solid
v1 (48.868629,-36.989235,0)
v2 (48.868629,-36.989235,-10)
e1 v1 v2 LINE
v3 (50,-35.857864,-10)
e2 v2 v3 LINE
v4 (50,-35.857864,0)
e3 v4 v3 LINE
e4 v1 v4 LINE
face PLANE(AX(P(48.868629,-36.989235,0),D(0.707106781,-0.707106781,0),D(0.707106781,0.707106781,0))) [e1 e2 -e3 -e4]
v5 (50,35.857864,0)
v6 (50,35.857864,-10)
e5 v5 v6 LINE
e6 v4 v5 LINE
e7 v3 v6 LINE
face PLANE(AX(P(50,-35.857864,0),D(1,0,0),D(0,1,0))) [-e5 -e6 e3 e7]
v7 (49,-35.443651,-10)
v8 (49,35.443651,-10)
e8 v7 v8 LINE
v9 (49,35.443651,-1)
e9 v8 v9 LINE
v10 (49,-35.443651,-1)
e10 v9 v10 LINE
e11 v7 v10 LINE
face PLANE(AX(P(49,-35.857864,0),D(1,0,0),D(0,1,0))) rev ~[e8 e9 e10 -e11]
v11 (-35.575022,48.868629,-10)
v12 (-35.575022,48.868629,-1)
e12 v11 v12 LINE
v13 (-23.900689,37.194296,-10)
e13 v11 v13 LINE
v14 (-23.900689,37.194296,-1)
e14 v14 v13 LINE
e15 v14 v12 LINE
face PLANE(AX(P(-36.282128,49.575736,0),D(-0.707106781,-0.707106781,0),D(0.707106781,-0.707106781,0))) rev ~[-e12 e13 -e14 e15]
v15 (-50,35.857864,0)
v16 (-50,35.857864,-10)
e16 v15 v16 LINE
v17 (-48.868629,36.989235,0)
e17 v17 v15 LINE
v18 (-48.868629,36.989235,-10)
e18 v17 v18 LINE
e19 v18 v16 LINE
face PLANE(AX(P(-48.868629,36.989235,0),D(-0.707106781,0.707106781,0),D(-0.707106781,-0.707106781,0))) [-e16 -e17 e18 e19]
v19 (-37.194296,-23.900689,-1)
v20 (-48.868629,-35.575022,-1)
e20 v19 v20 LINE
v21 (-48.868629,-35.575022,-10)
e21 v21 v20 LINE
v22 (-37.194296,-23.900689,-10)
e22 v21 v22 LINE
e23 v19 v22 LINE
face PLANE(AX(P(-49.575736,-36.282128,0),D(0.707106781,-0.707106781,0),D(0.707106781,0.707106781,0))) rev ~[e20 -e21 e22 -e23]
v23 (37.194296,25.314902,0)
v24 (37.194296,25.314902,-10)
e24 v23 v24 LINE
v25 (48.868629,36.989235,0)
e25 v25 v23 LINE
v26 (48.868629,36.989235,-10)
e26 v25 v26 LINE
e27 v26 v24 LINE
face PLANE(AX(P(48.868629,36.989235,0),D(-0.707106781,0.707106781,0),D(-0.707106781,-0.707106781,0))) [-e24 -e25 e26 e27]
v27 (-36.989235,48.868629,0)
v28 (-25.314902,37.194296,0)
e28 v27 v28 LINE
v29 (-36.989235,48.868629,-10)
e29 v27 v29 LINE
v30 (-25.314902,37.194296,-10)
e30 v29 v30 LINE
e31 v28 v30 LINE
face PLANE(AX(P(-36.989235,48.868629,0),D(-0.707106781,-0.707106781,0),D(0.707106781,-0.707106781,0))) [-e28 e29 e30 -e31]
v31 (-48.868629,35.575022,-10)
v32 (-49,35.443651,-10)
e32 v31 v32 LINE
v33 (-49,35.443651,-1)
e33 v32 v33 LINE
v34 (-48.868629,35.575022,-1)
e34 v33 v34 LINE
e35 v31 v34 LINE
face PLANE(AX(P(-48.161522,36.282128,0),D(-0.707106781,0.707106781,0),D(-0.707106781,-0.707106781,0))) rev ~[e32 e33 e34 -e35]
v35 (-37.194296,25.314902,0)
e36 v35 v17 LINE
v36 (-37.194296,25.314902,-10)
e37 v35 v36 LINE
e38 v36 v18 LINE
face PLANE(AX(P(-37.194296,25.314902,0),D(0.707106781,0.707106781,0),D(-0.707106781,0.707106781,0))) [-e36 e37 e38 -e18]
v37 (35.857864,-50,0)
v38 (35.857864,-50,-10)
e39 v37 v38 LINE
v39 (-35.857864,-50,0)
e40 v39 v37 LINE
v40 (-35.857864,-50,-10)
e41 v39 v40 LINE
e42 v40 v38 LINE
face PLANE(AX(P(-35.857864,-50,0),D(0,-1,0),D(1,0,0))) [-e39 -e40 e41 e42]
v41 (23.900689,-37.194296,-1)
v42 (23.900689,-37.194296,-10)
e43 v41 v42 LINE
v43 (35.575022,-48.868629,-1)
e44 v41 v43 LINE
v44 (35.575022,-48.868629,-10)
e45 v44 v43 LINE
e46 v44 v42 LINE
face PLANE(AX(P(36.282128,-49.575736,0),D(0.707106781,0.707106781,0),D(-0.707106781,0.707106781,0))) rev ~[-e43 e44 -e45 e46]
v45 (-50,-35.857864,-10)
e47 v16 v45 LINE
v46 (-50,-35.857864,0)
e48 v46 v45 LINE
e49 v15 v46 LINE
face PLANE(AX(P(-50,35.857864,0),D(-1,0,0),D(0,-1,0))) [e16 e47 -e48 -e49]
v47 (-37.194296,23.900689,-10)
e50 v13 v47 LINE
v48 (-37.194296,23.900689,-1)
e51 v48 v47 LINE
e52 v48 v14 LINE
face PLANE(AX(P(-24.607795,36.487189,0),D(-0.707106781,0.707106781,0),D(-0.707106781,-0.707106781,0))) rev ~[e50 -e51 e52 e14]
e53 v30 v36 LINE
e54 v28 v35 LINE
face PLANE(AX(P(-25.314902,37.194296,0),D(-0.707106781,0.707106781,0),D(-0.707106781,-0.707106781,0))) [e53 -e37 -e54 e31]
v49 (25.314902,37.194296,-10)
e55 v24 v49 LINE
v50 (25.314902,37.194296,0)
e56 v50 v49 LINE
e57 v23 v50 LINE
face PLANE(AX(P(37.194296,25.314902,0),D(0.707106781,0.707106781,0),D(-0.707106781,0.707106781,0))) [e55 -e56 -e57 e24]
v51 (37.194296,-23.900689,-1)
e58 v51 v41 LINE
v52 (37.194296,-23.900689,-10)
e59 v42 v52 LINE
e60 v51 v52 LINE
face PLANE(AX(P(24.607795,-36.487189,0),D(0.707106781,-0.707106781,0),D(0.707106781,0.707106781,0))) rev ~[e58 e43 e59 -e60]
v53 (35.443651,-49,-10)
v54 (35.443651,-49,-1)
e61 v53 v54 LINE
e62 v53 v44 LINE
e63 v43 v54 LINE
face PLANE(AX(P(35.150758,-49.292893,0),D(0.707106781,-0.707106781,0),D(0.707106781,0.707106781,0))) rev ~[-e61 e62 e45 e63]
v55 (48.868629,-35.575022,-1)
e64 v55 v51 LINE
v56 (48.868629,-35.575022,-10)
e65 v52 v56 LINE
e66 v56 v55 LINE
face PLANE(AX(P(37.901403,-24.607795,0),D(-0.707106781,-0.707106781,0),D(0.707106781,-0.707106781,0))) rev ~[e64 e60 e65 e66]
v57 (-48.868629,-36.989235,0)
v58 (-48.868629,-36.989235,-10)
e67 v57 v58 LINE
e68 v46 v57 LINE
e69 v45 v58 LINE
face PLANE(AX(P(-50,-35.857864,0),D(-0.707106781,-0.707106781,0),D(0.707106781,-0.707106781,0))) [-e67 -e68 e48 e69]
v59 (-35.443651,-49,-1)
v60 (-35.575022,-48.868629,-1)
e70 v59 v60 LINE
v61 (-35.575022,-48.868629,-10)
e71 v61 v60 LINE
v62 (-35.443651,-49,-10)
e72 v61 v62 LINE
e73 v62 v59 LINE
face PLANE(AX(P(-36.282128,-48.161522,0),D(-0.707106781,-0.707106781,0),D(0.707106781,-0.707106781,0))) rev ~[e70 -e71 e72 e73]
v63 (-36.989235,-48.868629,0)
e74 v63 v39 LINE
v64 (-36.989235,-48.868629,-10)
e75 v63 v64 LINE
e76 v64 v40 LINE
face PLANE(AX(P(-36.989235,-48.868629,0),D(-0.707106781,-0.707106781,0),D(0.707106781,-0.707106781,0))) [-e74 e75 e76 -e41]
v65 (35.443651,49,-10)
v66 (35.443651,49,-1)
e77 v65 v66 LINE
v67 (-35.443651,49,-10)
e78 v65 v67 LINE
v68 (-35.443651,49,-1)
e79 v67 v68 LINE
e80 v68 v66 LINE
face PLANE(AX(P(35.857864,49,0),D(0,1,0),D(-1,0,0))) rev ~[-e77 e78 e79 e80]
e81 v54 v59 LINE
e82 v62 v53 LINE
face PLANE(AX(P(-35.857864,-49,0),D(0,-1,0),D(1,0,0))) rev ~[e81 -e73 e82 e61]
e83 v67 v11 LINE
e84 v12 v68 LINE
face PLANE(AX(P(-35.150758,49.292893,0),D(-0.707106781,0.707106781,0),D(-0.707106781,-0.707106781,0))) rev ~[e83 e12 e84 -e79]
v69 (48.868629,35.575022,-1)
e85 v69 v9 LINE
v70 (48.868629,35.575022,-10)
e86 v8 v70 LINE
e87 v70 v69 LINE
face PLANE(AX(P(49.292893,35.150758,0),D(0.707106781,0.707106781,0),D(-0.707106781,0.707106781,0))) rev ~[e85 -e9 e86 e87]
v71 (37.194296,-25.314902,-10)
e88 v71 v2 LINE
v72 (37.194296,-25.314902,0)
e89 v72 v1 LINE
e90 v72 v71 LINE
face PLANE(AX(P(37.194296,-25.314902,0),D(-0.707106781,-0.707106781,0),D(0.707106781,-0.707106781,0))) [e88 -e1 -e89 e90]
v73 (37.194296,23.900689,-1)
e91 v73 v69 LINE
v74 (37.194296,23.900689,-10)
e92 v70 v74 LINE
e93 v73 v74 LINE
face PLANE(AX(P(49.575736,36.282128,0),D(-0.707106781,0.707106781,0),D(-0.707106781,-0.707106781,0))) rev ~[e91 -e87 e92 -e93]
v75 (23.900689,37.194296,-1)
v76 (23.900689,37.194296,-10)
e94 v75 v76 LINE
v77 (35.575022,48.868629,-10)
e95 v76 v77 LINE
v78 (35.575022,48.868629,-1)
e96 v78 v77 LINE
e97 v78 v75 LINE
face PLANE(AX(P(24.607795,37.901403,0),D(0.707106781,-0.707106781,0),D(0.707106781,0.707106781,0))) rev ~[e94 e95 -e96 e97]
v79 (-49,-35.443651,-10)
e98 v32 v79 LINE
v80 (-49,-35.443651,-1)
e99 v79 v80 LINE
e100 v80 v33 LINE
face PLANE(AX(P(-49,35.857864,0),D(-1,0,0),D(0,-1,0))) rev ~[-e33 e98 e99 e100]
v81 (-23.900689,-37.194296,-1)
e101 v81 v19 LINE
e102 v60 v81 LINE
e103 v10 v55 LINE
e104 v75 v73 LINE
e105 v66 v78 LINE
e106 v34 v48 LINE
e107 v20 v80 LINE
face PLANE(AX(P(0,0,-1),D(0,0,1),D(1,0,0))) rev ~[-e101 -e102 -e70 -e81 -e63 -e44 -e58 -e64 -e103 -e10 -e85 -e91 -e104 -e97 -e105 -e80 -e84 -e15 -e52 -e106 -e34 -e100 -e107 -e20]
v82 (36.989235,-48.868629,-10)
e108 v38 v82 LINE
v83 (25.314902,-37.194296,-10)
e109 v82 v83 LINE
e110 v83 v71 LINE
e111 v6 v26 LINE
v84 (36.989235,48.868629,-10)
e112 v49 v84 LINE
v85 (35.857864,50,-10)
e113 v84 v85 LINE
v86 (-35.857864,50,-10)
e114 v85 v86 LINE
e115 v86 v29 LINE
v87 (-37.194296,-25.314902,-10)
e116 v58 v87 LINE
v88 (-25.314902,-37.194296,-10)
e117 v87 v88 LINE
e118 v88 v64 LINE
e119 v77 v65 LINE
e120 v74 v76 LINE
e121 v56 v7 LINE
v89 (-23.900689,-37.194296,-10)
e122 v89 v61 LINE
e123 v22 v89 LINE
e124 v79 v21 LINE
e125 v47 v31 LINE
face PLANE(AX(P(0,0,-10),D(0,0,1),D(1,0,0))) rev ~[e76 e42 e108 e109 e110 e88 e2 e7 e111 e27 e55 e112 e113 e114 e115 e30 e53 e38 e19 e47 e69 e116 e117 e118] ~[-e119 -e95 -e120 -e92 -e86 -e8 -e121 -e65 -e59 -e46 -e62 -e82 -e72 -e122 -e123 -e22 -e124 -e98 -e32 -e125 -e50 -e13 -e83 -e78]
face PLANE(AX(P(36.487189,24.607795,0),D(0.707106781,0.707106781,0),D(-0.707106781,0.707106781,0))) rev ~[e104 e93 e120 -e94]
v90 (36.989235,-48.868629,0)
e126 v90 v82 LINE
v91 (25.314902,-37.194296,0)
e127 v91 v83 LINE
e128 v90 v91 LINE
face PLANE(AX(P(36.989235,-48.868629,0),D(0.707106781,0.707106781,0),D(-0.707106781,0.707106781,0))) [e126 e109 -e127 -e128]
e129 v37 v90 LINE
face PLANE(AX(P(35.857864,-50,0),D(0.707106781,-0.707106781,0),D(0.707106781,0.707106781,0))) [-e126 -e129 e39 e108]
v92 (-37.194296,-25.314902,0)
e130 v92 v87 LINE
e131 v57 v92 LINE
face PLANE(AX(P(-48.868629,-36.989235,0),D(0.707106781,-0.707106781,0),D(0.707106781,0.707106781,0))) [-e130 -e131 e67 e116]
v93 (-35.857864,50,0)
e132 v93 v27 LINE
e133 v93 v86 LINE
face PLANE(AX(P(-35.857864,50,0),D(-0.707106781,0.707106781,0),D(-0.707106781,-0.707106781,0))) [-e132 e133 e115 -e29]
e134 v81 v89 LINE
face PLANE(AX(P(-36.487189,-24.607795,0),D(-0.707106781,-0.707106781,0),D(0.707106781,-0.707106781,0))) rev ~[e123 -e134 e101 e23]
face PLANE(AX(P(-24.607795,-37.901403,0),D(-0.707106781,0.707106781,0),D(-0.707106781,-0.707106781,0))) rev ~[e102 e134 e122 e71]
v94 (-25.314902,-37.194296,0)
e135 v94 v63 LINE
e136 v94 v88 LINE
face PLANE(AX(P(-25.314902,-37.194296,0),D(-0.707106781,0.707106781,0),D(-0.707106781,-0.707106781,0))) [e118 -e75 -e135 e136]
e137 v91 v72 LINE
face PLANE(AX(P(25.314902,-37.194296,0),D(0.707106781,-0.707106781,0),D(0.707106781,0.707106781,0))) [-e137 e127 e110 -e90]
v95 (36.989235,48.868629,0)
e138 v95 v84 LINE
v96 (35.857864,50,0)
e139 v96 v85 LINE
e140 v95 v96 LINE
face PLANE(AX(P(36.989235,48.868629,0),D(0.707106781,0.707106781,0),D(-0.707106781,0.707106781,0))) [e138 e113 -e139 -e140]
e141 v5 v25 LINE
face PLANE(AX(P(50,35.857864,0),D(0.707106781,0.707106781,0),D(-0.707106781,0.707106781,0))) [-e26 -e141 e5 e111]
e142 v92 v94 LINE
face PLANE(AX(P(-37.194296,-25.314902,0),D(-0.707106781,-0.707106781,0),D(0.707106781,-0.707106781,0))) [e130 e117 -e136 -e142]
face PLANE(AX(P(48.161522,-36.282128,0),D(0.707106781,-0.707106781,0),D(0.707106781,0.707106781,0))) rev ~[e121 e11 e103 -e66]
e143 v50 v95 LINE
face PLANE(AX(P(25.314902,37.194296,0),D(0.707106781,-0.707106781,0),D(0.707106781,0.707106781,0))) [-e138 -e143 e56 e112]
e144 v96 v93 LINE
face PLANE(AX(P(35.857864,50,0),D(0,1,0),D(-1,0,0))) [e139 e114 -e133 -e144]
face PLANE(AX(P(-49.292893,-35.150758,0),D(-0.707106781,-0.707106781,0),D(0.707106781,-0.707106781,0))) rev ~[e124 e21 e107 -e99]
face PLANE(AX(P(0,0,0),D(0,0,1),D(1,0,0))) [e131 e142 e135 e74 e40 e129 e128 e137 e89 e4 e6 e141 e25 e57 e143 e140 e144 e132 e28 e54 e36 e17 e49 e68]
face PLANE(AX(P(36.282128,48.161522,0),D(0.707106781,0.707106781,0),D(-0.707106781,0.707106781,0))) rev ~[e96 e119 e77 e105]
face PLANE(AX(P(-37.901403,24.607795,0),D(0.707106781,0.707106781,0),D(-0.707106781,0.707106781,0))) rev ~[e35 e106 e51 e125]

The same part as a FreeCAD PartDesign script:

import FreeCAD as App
import Part
import Sketcher


def faces_at(feature, points):
    """Names of the faces that lie closest to the given points."""
    faces = feature.Shape.Faces
    near = lambda p: min(range(len(faces)), key=lambda i: faces[i].distToShape(Part.Vertex(*p))[0])
    return sorted({f"Face{near(p) + 1}" for p in points})


def add_polygon(sketch, points):
    """Adds a closed chain of lines whose ends are joined by coincident constraints."""
    first, n = sketch.GeometryCount, len(points)
    for a, b in zip(points, points[1:] + points[:1]):
        sketch.addGeometry(Part.LineSegment(App.Vector(*a, 0), App.Vector(*b, 0)), False)
    for i in range(n):
        sketch.addConstraint(Sketcher.Constraint("Coincident", first + i, 2, first + (i + 1) % n, 1))

doc = App.newDocument("Part")
body = doc.addObject("PartDesign::Body", "Body")

# Sketch on XY plane
sketch1 = body.newObject("Sketcher::SketchObject", "Sketch")
sketch1.AttachmentSupport = (doc.getObject("XY_Plane"), [""])
sketch1.MapMode = "FlatFace"
add_polygon(sketch1, [(36.989235, 48.868629), (35.857864, 50), (-35.857864, 50), (-36.989235, 48.868629), (-25.314902, 37.194296), (-37.194296, 25.314902), (-48.868629, 36.989235), (-50, 35.857864), (-50, -35.857864), (-48.868629, -36.989235), (-37.194296, -25.314902), (-25.314902, -37.194296), (-36.989235, -48.868629), (-35.857864, -50), (35.857864, -50), (36.989235, -48.868629), (25.314902, -37.194296), (37.194296, -25.314902), (48.868629, -36.989235), (50, -35.857864), (50, 35.857864), (48.868629, 36.989235), (37.194296, 25.314902), (25.314902, 37.194296)])  # lines 0-23
sketch1.addConstraint([
    Sketcher.Constraint("Horizontal", 1),
    Sketcher.Constraint("Vertical", 7),
    Sketcher.Constraint("Horizontal", 13),
    Sketcher.Constraint("Vertical", 19),
    Sketcher.Constraint("Symmetric", 0, 2, 12, 2, -1, 1),
    Sketcher.Constraint("Symmetric", 2, 2, 14, 2, -1, 1),
    Sketcher.Constraint("Symmetric", 3, 2, 15, 2, -1, 1),
    Sketcher.Constraint("Symmetric", 4, 2, 16, 2, -1, 1),
    Sketcher.Constraint("Symmetric", 5, 2, 17, 2, -1, 1),
    Sketcher.Constraint("Symmetric", 6, 2, 18, 2, -1, 1),
    Sketcher.Constraint("Symmetric", 8, 2, 20, 2, -1, 1),
    Sketcher.Constraint("Symmetric", 9, 2, 21, 2, -1, 1),
    Sketcher.Constraint("Symmetric", 10, 2, 22, 2, -1, 1),
    Sketcher.Constraint("Symmetric", 11, 2, 23, 2, -1, 1),
    Sketcher.Constraint("Symmetric", 11, 2, 14, 2, -2),
    Sketcher.Constraint("Symmetric", 10, 2, 15, 2, -2),
    Sketcher.Constraint("Symmetric", 9, 2, 16, 2, -2),
    Sketcher.Constraint("Symmetric", 8, 2, 17, 2, -2),
    Sketcher.Constraint("Perpendicular", 0, 2),
    Sketcher.Constraint("Perpendicular", 2, 3),
    Sketcher.Constraint("Perpendicular", 3, 4),
    Sketcher.Constraint("Perpendicular", 4, 5),
    Sketcher.Constraint("Perpendicular", 5, 6),
    Sketcher.Constraint("Perpendicular", 6, 8),
    Sketcher.Constraint("Perpendicular", 8, 9),
    Sketcher.Constraint("Perpendicular", 12, 14),
    Sketcher.Constraint("Perpendicular", 18, 20),
    Sketcher.Constraint("Equal", 13, 7),
    Sketcher.Constraint("Equal", 3, 5),
    Sketcher.Constraint("Equal", 2, 6),
    Sketcher.Constraint("DistanceY", -1, 1, 0, 2, 50.0),
    Sketcher.Constraint("Distance", 0, 1.6),
    Sketcher.Constraint("Distance", 4, 16.8),
    Sketcher.Constraint("Distance", 3, 16.51),
])
pad1 = body.newObject("PartDesign::Pad", "Pad")
pad1.Profile = sketch1
pad1.Length = 10
pad1.Reversed = True
doc.recompute()

thickness = body.newObject("PartDesign::Thickness", "Thickness")
thickness.Base = (pad1, faces_at(pad1, [(0, 0, -10)]))
thickness.Value = 1
thickness.Reversed = True
thickness.Join = "Intersection"

doc.recompute()
